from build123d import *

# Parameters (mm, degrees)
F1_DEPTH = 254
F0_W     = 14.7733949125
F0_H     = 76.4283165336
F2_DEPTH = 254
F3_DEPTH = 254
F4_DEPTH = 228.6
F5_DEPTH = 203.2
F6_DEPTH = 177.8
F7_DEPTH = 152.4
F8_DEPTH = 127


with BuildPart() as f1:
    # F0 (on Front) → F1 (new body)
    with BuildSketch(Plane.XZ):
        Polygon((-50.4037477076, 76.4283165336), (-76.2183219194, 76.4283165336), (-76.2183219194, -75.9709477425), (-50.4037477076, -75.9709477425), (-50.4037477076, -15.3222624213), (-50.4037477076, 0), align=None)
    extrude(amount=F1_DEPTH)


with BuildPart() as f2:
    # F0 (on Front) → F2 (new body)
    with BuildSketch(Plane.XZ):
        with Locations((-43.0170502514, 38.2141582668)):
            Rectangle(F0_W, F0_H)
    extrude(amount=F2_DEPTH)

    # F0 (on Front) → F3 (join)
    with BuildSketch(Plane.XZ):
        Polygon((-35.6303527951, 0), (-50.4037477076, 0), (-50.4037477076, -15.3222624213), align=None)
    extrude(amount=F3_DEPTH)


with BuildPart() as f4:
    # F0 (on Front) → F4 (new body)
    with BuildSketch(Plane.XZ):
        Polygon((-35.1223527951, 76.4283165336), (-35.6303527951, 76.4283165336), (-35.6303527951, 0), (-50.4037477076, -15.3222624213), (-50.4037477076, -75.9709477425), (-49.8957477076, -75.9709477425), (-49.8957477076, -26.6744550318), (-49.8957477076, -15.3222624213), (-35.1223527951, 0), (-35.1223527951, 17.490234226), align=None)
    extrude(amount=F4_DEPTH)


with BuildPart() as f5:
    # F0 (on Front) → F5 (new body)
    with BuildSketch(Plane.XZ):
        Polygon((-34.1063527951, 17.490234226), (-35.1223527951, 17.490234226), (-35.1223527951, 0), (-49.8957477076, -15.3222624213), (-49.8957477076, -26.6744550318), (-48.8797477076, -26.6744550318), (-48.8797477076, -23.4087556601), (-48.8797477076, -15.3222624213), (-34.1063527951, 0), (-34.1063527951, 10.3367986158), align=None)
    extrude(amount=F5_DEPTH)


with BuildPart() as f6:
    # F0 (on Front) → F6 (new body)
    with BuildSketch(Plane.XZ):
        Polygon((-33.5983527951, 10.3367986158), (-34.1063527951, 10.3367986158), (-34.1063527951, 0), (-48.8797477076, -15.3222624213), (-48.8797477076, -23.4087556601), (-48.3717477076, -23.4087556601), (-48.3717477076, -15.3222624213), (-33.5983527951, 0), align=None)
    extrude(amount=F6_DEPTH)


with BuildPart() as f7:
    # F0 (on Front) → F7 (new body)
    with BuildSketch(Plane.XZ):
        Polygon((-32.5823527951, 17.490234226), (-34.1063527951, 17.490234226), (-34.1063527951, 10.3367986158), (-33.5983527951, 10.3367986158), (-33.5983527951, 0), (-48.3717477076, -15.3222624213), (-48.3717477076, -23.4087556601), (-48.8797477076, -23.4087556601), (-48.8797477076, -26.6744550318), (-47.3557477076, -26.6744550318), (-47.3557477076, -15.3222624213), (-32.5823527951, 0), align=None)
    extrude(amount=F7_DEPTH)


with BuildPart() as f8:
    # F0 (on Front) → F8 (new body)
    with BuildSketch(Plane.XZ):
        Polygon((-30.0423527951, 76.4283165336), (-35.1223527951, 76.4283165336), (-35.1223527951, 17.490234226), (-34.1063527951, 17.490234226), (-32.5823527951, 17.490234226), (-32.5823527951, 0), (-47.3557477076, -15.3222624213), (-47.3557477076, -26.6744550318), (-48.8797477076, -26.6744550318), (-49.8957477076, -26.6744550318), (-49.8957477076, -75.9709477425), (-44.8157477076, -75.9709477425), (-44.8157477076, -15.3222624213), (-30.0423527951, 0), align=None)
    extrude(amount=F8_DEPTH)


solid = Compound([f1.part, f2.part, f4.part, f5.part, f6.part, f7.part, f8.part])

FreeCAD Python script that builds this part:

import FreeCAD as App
import Part
import Sketcher

V = App.Vector
Q = App.Units.Quantity


def add_polygon(sketch, points):
    """Adds a closed chain of lines whose ends are joined by coincident constraints."""
    first, n = sketch.GeometryCount, len(points)
    for a, b in zip(points, points[1:] + points[:1]):
        sketch.addGeometry(Part.LineSegment(App.Vector(*a, 0), App.Vector(*b, 0)), False)
    for i in range(n):
        sketch.addConstraint(Sketcher.Constraint("Coincident", first + i, 2, first + (i + 1) % n, 1))

doc = App.newDocument("Part")
params = doc.addObject("Spreadsheet::Sheet", "Params")
for row, (alias, value) in enumerate([
    ("pad1_length", "10 in"),
    ("pad2_length", "10 in"),
    ("pad3_length", "10 in"),
    ("sketch4_width", "0.02 in"),
    ("pad4_length", "9 in"),
    ("sketch5_width", "0.04 in"),
    ("pad5_length", "8 in"),
    ("sketch6_width", "0.02 in"),
    ("pad6_length", "7 in"),
    ("sketch7_width", "0.06 in"),
    ("sketch7_width2", "0.02 in"),
    ("pad7_length", "6 in"),
    ("sketch8_width", "0.2 in"),
    ("sketch8_width2", "0.1 in"),
    ("pad8_length", "5 in"),
], start=1):
    params.set(f"A{row}", alias)
    params.set(f"B{row}", "=" + value)
    params.setAlias(f"B{row}", alias)

body = doc.addObject("PartDesign::Body", "Body")

sketch1 = body.newObject("Sketcher::SketchObject", "Sketch")
sketch1.AttachmentSupport = (doc.getObject("XZ_Plane"), [""])
sketch1.MapMode = "FlatFace"
add_polygon(sketch1, [(-50, 76), (-76, 76), (-76, -76), (-50, -76)])
sketch1.addConstraint([
    Sketcher.Constraint("Horizontal", 0),
    Sketcher.Constraint("Vertical", 1),
    Sketcher.Constraint("Horizontal", 2),
    Sketcher.Constraint("Vertical", 3),
    Sketcher.Constraint("DistanceX", 0, 2, 0, 1, Q("25.814574 mm")),
    Sketcher.Constraint("DistanceY", 1, 2, 1, 1, Q("152.399264 mm")),
    Sketcher.Constraint("DistanceX", 0, 2, -1, 1, Q("76.218322 mm")),
    Sketcher.Constraint("DistanceY", -1, 1, 0, 2, Q("76.428317 mm")),
])
pad1 = body.newObject("PartDesign::Pad", "Pad")
pad1.Profile = sketch1
pad1.setExpression("Length", "Params.pad1_length")
body2 = doc.addObject("PartDesign::Body", "Body001")

sketch2 = body2.newObject("Sketcher::SketchObject", "Sketch001")
sketch2.AttachmentSupport = (doc.getObject("XZ_Plane001"), [""])
sketch2.MapMode = "FlatFace"
add_polygon(sketch2, [(-50, 76), (-50, 0), (-36, 0), (-36, 76)])
sketch2.addConstraint([
    Sketcher.Constraint("Vertical", 0),
    Sketcher.Constraint("Horizontal", 1),
    Sketcher.Constraint("Vertical", 2),
    Sketcher.Constraint("Horizontal", 3),
    Sketcher.Constraint("PointOnObject", 0, 2, -1),
    Sketcher.Constraint("DistanceX", 1, 1, 1, 2, Q("14.773395 mm")),
    Sketcher.Constraint("DistanceY", 0, 2, 0, 1, Q("76.428317 mm")),
    Sketcher.Constraint("DistanceX", 0, 2, -1, 1, Q("50.403748 mm")),
])
pad2 = body2.newObject("PartDesign::Pad", "Pad001")
pad2.Profile = sketch2
pad2.setExpression("Length", "Params.pad2_length")

sketch3 = body2.newObject("Sketcher::SketchObject", "Sketch002")
sketch3.AttachmentSupport = (doc.getObject("XZ_Plane001"), [""])
sketch3.MapMode = "FlatFace"
add_polygon(sketch3, [(-36, 0), (-50, 0), (-50, -15)])
sketch3.addConstraint([
    Sketcher.Constraint("Horizontal", 0),
    Sketcher.Constraint("Vertical", 1),
    Sketcher.Constraint("PointOnObject", 0, 2, -1),
    Sketcher.Constraint("DistanceX", 0, 2, 0, 1, Q("14.773395 mm")),
    Sketcher.Constraint("DistanceY", 1, 2, 1, 1, Q("15.322262 mm")),
    Sketcher.Constraint("DistanceX", 0, 2, -1, 1, Q("50.403748 mm")),
])
pad3 = body2.newObject("PartDesign::Pad", "Pad002")
pad3.Profile = sketch3
pad3.setExpression("Length", "Params.pad3_length")
body3 = doc.addObject("PartDesign::Body", "Body002")

sketch4 = body3.newObject("Sketcher::SketchObject", "Sketch003")
sketch4.AttachmentSupport = (doc.getObject("XZ_Plane002"), [""])
sketch4.MapMode = "FlatFace"
add_polygon(sketch4, [(-35.1, 76.4), (-35.6, 76.4), (-35.6, 0), (-50.4, -15.3), (-50.4, -76), (-49.9, -76), (-49.9, -15.3), (-35.1, 0)])
sketch4.addConstraint([
    Sketcher.Constraint("Horizontal", 0),
    Sketcher.Constraint("Vertical", 1),
    Sketcher.Constraint("Vertical", 3),
    Sketcher.Constraint("Horizontal", 4),
    Sketcher.Constraint("Vertical", 5),
    Sketcher.Constraint("Vertical", 7),
    Sketcher.Constraint("PointOnObject", 1, 2, -1),
    Sketcher.Constraint("PointOnObject", 6, 2, -1),
    Sketcher.Constraint("Parallel", 2, 6),
    Sketcher.Constraint("Horizontal", 2, 2, 5, 2),
    Sketcher.Constraint("DistanceX", 0, 2, 0, 1, Q("0.02 in")),
    Sketcher.Constraint("DistanceY", 1, 2, 1, 1, Q("76.428317 mm")),
    Sketcher.Constraint("DistanceY", 3, 2, 3, 1, Q("60.648685 mm")),
    Sketcher.Constraint("DistanceY", 2, 2, 0, 2, Q("91.750579 mm")),
    Sketcher.Constraint("Distance", 2, Q("21.284382 mm")),
    Sketcher.Constraint("DistanceX", 0, 2, -1, 1, Q("35.630353 mm")),
])
sketch4.setExpression("Constraints[18]", "Params.sketch4_width")
pad4 = body3.newObject("PartDesign::Pad", "Pad003")
pad4.Profile = sketch4
pad4.setExpression("Length", "Params.pad4_length")
body4 = doc.addObject("PartDesign::Body", "Body003")

sketch5 = body4.newObject("Sketcher::SketchObject", "Sketch004")
sketch5.AttachmentSupport = (doc.getObject("XZ_Plane003"), [""])
sketch5.MapMode = "FlatFace"
add_polygon(sketch5, [(-34.1, 17.5), (-35.1, 17.5), (-35.1, 0), (-49.9, -15.3), (-49.9, -26.7), (-48.9, -26.7), (-48.9, -15.3), (-34.1, 0)])
sketch5.addConstraint([
    Sketcher.Constraint("Horizontal", 0),
    Sketcher.Constraint("Vertical", 1),
    Sketcher.Constraint("Vertical", 3),
    Sketcher.Constraint("Horizontal", 4),
    Sketcher.Constraint("Vertical", 5),
    Sketcher.Constraint("Vertical", 7),
    Sketcher.Constraint("PointOnObject", 1, 2, -1),
    Sketcher.Constraint("PointOnObject", 6, 2, -1),
    Sketcher.Constraint("Parallel", 2, 6),
    Sketcher.Constraint("Horizontal", 2, 2, 5, 2),
    Sketcher.Constraint("DistanceX", 0, 2, 0, 1, Q("0.04 in")),
    Sketcher.Constraint("DistanceY", 1, 2, 1, 1, Q("17.490234 mm")),
    Sketcher.Constraint("DistanceY", 3, 2, 3, 1, Q("11.352193 mm")),
    Sketcher.Constraint("DistanceY", 3, 2, 0, 2, Q("44.164689 mm")),
    Sketcher.Constraint("Distance", 2, Q("21.284382 mm")),
    Sketcher.Constraint("DistanceX", 0, 2, -1, 1, Q("35.122353 mm")),
])
sketch5.setExpression("Constraints[18]", "Params.sketch5_width")
pad5 = body4.newObject("PartDesign::Pad", "Pad004")
pad5.Profile = sketch5
pad5.setExpression("Length", "Params.pad5_length")
body5 = doc.addObject("PartDesign::Body", "Body004")

sketch6 = body5.newObject("Sketcher::SketchObject", "Sketch005")
sketch6.AttachmentSupport = (doc.getObject("XZ_Plane004"), [""])
sketch6.MapMode = "FlatFace"
add_polygon(sketch6, [(-33.6, 10.3), (-34.1, 10.3), (-34.1, 0), (-48.9, -15.3), (-48.9, -23.4), (-48.4, -23.4), (-48.4, -15.3), (-33.6, 0)])
sketch6.addConstraint([
    Sketcher.Constraint("Horizontal", 0),
    Sketcher.Constraint("Vertical", 1),
    Sketcher.Constraint("Vertical", 3),
    Sketcher.Constraint("Horizontal", 4),
    Sketcher.Constraint("Vertical", 5),
    Sketcher.Constraint("Vertical", 7),
    Sketcher.Constraint("PointOnObject", 1, 2, -1),
    Sketcher.Constraint("PointOnObject", 6, 2, -1),
    Sketcher.Constraint("Parallel", 2, 6),
    Sketcher.Constraint("Horizontal", 2, 2, 5, 2),
    Sketcher.Constraint("DistanceX", 0, 2, 0, 1, Q("0.02 in")),
    Sketcher.Constraint("DistanceY", 1, 2, 1, 1, Q("10.336799 mm")),
    Sketcher.Constraint("DistanceY", 3, 2, 3, 1, Q("8.086493 mm")),
    Sketcher.Constraint("DistanceY", 2, 2, 0, 2, Q("25.659061 mm")),
    Sketcher.Constraint("Distance", 2, Q("21.284382 mm")),
    Sketcher.Constraint("DistanceX", 0, 2, -1, 1, Q("34.106353 mm")),
])
sketch6.setExpression("Constraints[18]", "Params.sketch6_width")
pad6 = body5.newObject("PartDesign::Pad", "Pad005")
pad6.Profile = sketch6
pad6.setExpression("Length", "Params.pad6_length")
body6 = doc.addObject("PartDesign::Body", "Body005")

sketch7 = body6.newObject("Sketcher::SketchObject", "Sketch006")
sketch7.AttachmentSupport = (doc.getObject("XZ_Plane005"), [""])
sketch7.MapMode = "FlatFace"
add_polygon(sketch7, [(-32.6, 17.5), (-34.1, 17.5), (-34.1, 10.3), (-33.6, 10.3), (-33.6, 0), (-48.4, -15.3), (-48.4, -23.4), (-48.9, -23.4), (-48.9, -26.7), (-47.4, -26.7), (-47.4, -15.3), (-32.6, 0)])
sketch7.addConstraint([
    Sketcher.Constraint("Horizontal", 0),
    Sketcher.Constraint("Vertical", 1),
    Sketcher.Constraint("Horizontal", 2),
    Sketcher.Constraint("Vertical", 3),
    Sketcher.Constraint("Vertical", 5),
    Sketcher.Constraint("Horizontal", 6),
    Sketcher.Constraint("Vertical", 7),
    Sketcher.Constraint("Horizontal", 8),
    Sketcher.Constraint("Vertical", 9),
    Sketcher.Constraint("Vertical", 11),
    Sketcher.Constraint("PointOnObject", 3, 2, -1),
    Sketcher.Constraint("PointOnObject", 10, 2, -1),
    Sketcher.Constraint("Parallel", 4, 10),
    Sketcher.Constraint("Horizontal", 4, 2, 9, 2),
    Sketcher.Constraint("Equal", 2, 6),
    Sketcher.Constraint("DistanceX", 0, 2, 0, 1, Q("0.06 in")),
    Sketcher.Constraint("DistanceX", 2, 1, 2, 2, Q("0.02 in")),
    Sketcher.Constraint("DistanceY", 3, 2, 3, 1, Q("10.336799 mm")),
    Sketcher.Constraint("DistanceY", 7, 2, 7, 1, Q("3.265699 mm")),
    Sketcher.Constraint("DistanceY", 1, 2, 1, 1, Q("7.153436 mm")),
    Sketcher.Constraint("DistanceY", 5, 2, 5, 1, Q("8.086493 mm")),
    Sketcher.Constraint("DistanceY", 4, 2, 1, 2, Q("25.659061 mm")),
    Sketcher.Constraint("Distance", 4, Q("21.284382 mm")),
    Sketcher.Constraint("DistanceX", 0, 2, -1, 1, Q("34.106353 mm")),
])
sketch7.setExpression("Constraints[27]", "Params.sketch7_width")
sketch7.setExpression("Constraints[28]", "Params.sketch7_width2")
pad7 = body6.newObject("PartDesign::Pad", "Pad006")
pad7.Profile = sketch7
pad7.setExpression("Length", "Params.pad7_length")
body7 = doc.addObject("PartDesign::Body", "Body006")

sketch8 = body7.newObject("Sketcher::SketchObject", "Sketch007")
sketch8.AttachmentSupport = (doc.getObject("XZ_Plane006"), [""])
sketch8.MapMode = "FlatFace"
add_polygon(sketch8, [(-30, 76.4), (-35.1, 76.4), (-35.1, 17.5), (-32.6, 17.5), (-32.6, 0), (-47.4, -15.3), (-47.4, -26.7), (-49.9, -26.7), (-49.9, -76), (-44.8, -76), (-44.8, -15.3), (-30, 0)])
sketch8.addConstraint([
    Sketcher.Constraint("Horizontal", 0),
    Sketcher.Constraint("Vertical", 1),
    Sketcher.Constraint("Horizontal", 2),
    Sketcher.Constraint("Vertical", 3),
    Sketcher.Constraint("Vertical", 5),
    Sketcher.Constraint("Horizontal", 6),
    Sketcher.Constraint("Vertical", 7),
    Sketcher.Constraint("Horizontal", 8),
    Sketcher.Constraint("Vertical", 9),
    Sketcher.Constraint("Vertical", 11),
    Sketcher.Constraint("PointOnObject", 3, 2, -1),
    Sketcher.Constraint("PointOnObject", 10, 2, -1),
    Sketcher.Constraint("Parallel", 4, 10),
    Sketcher.Constraint("Horizontal", 4, 2, 9, 2),
    Sketcher.Constraint("Equal", 2, 6),
    Sketcher.Constraint("DistanceX", 0, 2, 0, 1, Q("0.2 in")),
    Sketcher.Constraint("DistanceX", 2, 1, 2, 2, Q("0.1 in")),
    Sketcher.Constraint("DistanceY", 1, 2, 1, 1, Q("58.938082 mm")),
    Sketcher.Constraint("DistanceY", 3, 2, 3, 1, Q("17.490234 mm")),
    Sketcher.Constraint("DistanceY", 5, 2, 5, 1, Q("11.352193 mm")),
    Sketcher.Constraint("DistanceY", 7, 2, 7, 1, Q("49.296493 mm")),
    Sketcher.Constraint("DistanceY", 4, 2, 0, 2, Q("91.750579 mm")),
    Sketcher.Constraint("Distance", 4, Q("21.284382 mm")),
    Sketcher.Constraint("DistanceX", 0, 2, -1, 1, Q("35.122353 mm")),
])
sketch8.setExpression("Constraints[27]", "Params.sketch8_width")
sketch8.setExpression("Constraints[28]", "Params.sketch8_width2")
pad8 = body7.newObject("PartDesign::Pad", "Pad007")
pad8.Profile = sketch8
pad8.setExpression("Length", "Params.pad8_length")

doc.recompute()
